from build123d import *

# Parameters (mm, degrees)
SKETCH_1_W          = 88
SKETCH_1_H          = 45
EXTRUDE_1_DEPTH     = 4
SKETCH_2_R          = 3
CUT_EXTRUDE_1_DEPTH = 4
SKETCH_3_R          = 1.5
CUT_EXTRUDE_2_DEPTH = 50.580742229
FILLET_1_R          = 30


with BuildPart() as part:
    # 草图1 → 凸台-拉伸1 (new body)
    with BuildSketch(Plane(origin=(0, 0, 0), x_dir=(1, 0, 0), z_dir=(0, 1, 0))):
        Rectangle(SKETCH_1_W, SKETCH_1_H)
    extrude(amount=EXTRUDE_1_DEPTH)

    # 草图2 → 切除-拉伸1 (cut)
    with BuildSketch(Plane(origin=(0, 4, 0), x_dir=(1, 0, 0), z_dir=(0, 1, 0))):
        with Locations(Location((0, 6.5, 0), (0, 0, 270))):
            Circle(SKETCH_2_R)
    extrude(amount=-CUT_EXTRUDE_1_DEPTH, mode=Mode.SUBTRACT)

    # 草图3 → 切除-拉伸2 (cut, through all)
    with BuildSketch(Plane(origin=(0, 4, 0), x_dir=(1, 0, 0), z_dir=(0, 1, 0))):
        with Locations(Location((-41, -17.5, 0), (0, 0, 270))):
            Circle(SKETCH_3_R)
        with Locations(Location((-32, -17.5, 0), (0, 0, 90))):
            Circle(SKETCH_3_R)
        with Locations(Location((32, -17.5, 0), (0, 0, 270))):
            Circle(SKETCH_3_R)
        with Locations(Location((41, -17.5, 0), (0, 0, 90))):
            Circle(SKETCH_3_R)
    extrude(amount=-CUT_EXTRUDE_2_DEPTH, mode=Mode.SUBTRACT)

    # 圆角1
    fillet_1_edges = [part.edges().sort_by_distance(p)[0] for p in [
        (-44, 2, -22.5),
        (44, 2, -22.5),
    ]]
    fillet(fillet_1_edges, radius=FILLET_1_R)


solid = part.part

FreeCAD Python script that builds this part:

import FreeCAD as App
import Part
import Sketcher
Q = App.Units.Quantity


def edges_at(feature, points):
    """Names of the edges that pass closest to the given points."""
    edges = feature.Shape.Edges
    near = lambda p: min(range(len(edges)), key=lambda i: edges[i].distToShape(Part.Vertex(*p))[0])
    return sorted({f"Edge{near(p) + 1}" for p in points})

doc = App.newDocument("Part")
body = doc.addObject("PartDesign::Body", "Body")

# Sketch on XZ plane
sketch1 = body.newObject("Sketcher::SketchObject", "Sketch")
sketch1.AttachmentSupport = (doc.getObject("XZ_Plane"), [""])
sketch1.MapMode = "FlatFace"
sketch1.addGeometry([
    Part.LineSegment(App.Vector(-44, -22, 0), App.Vector(-44, 22, 0)),
    Part.LineSegment(App.Vector(-44, 22, 0), App.Vector(44, 22, 0)),
    Part.LineSegment(App.Vector(44, 22, 0), App.Vector(44, -22, 0)),
    Part.LineSegment(App.Vector(44, -22, 0), App.Vector(-44, -22, 0)),
], False)
sketch1.addConstraint([
    Sketcher.Constraint("Coincident", 0, 2, 1, 1),
    Sketcher.Constraint("Coincident", 1, 2, 2, 1),
    Sketcher.Constraint("Coincident", 2, 2, 3, 1),
    Sketcher.Constraint("Coincident", 3, 2, 0, 1),
    Sketcher.Constraint("Vertical", 0),
    Sketcher.Constraint("Horizontal", 1),
    Sketcher.Constraint("Vertical", 2),
    Sketcher.Constraint("Horizontal", 3),
    Sketcher.Constraint("Symmetric", 0, 2, 2, 2, -1, 1),
    Sketcher.Constraint("DistanceX", 1, 1, 1, 2, Q("88 mm")),
    Sketcher.Constraint("DistanceY", 0, 1, 0, 2, Q("45 mm")),
])
pad1 = body.newObject("PartDesign::Pad", "Pad")
pad1.Profile = sketch1
pad1.Length = 4
pad1.Reversed = True

# Sketch on XZ plane
sketch2 = body.newObject("Sketcher::SketchObject", "Sketch001")
sketch2.AttachmentSupport = (doc.getObject("XZ_Plane"), [""])
sketch2.MapMode = "FlatFace"
sketch2.AttachmentOffset = App.Placement(App.Vector(0, 0, -4), App.Rotation())
sketch2.addGeometry(Part.Circle(App.Vector(0, -6.5, 0), App.Vector(0, 0, 1), 3), False)
sketch2.addConstraint([
    Sketcher.Constraint("PointOnObject", 0, 3, -2),
    Sketcher.Constraint("Diameter", 0, Q("6 mm")),
    Sketcher.Constraint("DistanceY", 0, 3, -1, 1, Q("6.5 mm")),
])
pocket1 = body.newObject("PartDesign::Pocket", "Pocket")
pocket1.Profile = sketch2
pocket1.Length = 4
pocket1.Reversed = True

# Sketch on XZ plane
sketch3 = body.newObject("Sketcher::SketchObject", "Sketch002")
sketch3.AttachmentSupport = (doc.getObject("XZ_Plane"), [""])
sketch3.MapMode = "FlatFace"
sketch3.AttachmentOffset = App.Placement(App.Vector(0, 0, -4), App.Rotation())
sketch3.addGeometry([
    Part.Circle(App.Vector(-41, 17.5, 0), App.Vector(0, 0, 1), 1.5),
    Part.Circle(App.Vector(-32, 17.5, 0), App.Vector(0, 0, 1), 1.5),
    Part.Circle(App.Vector(32, 17.5, 0), App.Vector(0, 0, 1), 1.5),
    Part.Circle(App.Vector(41, 17.5, 0), App.Vector(0, 0, 1), 1.5),
], False)
sketch3.addConstraint([
    Sketcher.Constraint("Equal", 0, 1),
    Sketcher.Constraint("Equal", 1, 2),
    Sketcher.Constraint("Equal", 2, 3),
    Sketcher.Constraint("Symmetric", 1, 3, 2, 3, -2),
    Sketcher.Constraint("Symmetric", 0, 3, 3, 3, -2),
    Sketcher.Constraint("Horizontal", 0, 3, 1, 3),
    Sketcher.Constraint("Diameter", 0, Q("3 mm")),
    Sketcher.Constraint("DistanceX", 0, 3, -1, 1, Q("41 mm")),
    Sketcher.Constraint("DistanceX", 1, 3, -1, 1, Q("32 mm")),
    Sketcher.Constraint("DistanceY", -1, 1, 0, 3, Q("17.5 mm")),
])
pocket2 = body.newObject("PartDesign::Pocket", "Pocket001")
pocket2.Profile = sketch3
pocket2.Type = "ThroughAll"
pocket2.Reversed = True
doc.recompute()

fillet = body.newObject("PartDesign::Fillet", "Fillet")
fillet.Base = (pocket2, edges_at(pocket2, [(-44, 2, -22.5), (44, 2, -22.5)]))
fillet.Radius = 30

doc.recompute()
